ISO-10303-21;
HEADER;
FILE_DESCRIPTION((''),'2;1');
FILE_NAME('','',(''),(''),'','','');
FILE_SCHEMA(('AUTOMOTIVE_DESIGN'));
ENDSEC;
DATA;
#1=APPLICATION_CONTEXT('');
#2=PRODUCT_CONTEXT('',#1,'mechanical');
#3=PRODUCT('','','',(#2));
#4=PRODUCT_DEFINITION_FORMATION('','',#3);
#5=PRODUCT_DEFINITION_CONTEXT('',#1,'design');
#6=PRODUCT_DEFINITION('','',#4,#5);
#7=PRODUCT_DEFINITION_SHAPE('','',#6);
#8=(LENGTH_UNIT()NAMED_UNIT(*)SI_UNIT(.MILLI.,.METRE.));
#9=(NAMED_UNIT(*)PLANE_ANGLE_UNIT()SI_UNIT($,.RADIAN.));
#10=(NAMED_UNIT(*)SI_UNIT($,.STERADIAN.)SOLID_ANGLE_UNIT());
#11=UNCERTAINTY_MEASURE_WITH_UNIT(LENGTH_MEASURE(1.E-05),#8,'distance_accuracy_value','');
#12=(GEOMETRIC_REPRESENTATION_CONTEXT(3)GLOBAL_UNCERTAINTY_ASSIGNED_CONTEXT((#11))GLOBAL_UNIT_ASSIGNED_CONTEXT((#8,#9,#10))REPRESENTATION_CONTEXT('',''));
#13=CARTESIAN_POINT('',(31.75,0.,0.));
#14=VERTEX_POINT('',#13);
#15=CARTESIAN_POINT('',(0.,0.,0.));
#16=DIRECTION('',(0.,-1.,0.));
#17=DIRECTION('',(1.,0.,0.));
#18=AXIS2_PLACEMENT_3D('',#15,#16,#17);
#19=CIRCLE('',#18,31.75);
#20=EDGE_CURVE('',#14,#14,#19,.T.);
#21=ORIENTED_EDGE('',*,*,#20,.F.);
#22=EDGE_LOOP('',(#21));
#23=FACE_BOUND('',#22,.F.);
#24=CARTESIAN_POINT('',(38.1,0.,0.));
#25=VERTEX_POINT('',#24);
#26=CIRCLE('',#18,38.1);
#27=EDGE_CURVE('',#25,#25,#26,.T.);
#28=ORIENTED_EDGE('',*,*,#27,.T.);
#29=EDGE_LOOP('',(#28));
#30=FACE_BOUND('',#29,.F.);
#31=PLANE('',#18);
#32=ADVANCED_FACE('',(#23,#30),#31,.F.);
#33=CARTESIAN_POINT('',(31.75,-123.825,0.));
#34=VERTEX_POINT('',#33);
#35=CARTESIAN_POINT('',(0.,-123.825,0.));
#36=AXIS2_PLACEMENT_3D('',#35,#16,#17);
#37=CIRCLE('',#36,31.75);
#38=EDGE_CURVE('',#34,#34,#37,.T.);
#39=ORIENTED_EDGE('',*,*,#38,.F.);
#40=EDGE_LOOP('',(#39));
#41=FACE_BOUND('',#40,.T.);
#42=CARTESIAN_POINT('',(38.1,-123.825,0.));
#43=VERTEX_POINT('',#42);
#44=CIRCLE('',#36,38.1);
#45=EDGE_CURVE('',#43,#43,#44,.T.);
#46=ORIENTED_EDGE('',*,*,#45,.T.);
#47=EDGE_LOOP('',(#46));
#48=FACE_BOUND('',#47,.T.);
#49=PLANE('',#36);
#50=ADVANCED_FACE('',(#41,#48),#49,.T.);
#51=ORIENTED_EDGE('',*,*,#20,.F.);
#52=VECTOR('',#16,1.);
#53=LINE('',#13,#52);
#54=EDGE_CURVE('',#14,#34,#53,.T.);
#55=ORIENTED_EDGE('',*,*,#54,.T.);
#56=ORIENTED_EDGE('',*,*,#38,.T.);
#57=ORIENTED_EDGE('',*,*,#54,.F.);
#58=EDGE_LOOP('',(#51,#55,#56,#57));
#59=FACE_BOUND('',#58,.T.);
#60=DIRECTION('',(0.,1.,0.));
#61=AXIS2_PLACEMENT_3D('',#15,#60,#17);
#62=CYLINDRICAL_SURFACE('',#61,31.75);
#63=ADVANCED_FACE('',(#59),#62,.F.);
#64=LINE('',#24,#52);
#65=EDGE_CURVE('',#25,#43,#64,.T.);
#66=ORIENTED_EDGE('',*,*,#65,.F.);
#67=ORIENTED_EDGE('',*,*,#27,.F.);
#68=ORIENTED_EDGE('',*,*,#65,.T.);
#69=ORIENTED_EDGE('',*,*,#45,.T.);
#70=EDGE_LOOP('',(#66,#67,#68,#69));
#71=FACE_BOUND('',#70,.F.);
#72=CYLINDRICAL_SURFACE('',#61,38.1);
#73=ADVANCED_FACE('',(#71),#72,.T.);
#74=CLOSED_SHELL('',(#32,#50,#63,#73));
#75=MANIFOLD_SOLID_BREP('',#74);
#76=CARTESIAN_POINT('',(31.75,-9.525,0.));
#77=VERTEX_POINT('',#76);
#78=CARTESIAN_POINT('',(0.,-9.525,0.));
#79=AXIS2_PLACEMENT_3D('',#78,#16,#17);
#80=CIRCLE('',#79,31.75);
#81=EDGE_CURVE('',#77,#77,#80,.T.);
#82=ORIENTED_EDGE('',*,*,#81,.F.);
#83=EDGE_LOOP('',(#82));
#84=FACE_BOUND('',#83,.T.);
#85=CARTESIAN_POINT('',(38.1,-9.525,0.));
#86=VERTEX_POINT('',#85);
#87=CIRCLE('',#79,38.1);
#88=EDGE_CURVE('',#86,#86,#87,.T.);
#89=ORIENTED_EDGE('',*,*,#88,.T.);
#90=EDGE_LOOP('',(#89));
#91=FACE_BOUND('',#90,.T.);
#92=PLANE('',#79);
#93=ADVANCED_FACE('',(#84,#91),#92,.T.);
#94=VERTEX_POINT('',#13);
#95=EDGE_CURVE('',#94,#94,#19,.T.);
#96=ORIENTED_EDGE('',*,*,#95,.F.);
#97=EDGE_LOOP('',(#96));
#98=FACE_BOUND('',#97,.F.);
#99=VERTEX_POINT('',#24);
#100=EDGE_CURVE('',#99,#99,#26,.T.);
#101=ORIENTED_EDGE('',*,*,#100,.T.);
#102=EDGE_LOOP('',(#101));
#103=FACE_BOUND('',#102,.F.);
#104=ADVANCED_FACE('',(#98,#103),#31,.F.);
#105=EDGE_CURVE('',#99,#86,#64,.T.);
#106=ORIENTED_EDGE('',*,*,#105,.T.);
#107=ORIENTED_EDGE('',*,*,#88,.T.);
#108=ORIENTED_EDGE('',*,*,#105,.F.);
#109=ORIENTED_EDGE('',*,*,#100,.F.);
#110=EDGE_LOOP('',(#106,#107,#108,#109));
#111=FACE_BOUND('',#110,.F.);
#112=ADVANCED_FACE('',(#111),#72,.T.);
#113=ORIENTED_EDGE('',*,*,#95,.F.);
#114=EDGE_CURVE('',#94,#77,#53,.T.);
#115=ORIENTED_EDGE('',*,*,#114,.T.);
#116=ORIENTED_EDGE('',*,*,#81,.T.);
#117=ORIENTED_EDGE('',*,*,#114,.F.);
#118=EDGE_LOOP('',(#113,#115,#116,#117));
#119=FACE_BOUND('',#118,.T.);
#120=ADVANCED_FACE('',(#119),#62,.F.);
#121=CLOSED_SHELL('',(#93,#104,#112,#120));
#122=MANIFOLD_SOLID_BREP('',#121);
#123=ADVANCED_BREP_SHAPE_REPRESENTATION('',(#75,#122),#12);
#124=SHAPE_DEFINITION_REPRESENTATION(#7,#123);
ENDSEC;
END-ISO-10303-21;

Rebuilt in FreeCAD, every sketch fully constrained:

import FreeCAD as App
import Part
import Sketcher

V = App.Vector
Q = App.Units.Quantity

doc = App.newDocument("Part")
body = doc.addObject("PartDesign::Body", "Body")

# Sketch on XZ plane
sketch1 = body.newObject("Sketcher::SketchObject", "Sketch")
sketch1.AttachmentSupport = (doc.getObject("XZ_Plane"), [""])
sketch1.MapMode = "FlatFace"
sketch1.addGeometry([
    Part.Circle(V(0, 0, 0), V(0, 0, 1), 38.1),
    Part.Circle(V(0, 0, 0), V(0, 0, 1), 31.75),
], False)
sketch1.addConstraint([
    Sketcher.Constraint("Coincident", 0, 3, -1, 1),
    Sketcher.Constraint("Coincident", 1, 3, -1, 1),
    Sketcher.Constraint("Diameter", 0, Q("3 in")),
    Sketcher.Constraint("Diameter", 1, Q("2.5 in")),
])
pad1 = body.newObject("PartDesign::Pad", "Pad")
pad1.Profile = sketch1
pad1.Length = Q("4.875 in")
body2 = doc.addObject("PartDesign::Body", "Body001")

# Sketch on XZ plane
sketch2 = body2.newObject("Sketcher::SketchObject", "Sketch001")
sketch2.AttachmentSupport = (doc.getObject("XZ_Plane001"), [""])
sketch2.MapMode = "FlatFace"
sketch2.addGeometry([
    Part.Circle(V(0, 0, 0), V(0, 0, 1), 38.1),
    Part.Circle(V(0, 0, 0), V(0, 0, 1), 31.75),
], False)
sketch2.addConstraint([
    Sketcher.Constraint("Coincident", 0, 3, -1, 1),
    Sketcher.Constraint("Coincident", 1, 3, -1, 1),
    Sketcher.Constraint("Diameter", 0, Q("3 in")),
    Sketcher.Constraint("Diameter", 1, Q("2.5 in")),
])
pad2 = body2.newObject("PartDesign::Pad", "Pad001")
pad2.Profile = sketch2
pad2.Length = Q("0.375 in")

doc.recompute()
